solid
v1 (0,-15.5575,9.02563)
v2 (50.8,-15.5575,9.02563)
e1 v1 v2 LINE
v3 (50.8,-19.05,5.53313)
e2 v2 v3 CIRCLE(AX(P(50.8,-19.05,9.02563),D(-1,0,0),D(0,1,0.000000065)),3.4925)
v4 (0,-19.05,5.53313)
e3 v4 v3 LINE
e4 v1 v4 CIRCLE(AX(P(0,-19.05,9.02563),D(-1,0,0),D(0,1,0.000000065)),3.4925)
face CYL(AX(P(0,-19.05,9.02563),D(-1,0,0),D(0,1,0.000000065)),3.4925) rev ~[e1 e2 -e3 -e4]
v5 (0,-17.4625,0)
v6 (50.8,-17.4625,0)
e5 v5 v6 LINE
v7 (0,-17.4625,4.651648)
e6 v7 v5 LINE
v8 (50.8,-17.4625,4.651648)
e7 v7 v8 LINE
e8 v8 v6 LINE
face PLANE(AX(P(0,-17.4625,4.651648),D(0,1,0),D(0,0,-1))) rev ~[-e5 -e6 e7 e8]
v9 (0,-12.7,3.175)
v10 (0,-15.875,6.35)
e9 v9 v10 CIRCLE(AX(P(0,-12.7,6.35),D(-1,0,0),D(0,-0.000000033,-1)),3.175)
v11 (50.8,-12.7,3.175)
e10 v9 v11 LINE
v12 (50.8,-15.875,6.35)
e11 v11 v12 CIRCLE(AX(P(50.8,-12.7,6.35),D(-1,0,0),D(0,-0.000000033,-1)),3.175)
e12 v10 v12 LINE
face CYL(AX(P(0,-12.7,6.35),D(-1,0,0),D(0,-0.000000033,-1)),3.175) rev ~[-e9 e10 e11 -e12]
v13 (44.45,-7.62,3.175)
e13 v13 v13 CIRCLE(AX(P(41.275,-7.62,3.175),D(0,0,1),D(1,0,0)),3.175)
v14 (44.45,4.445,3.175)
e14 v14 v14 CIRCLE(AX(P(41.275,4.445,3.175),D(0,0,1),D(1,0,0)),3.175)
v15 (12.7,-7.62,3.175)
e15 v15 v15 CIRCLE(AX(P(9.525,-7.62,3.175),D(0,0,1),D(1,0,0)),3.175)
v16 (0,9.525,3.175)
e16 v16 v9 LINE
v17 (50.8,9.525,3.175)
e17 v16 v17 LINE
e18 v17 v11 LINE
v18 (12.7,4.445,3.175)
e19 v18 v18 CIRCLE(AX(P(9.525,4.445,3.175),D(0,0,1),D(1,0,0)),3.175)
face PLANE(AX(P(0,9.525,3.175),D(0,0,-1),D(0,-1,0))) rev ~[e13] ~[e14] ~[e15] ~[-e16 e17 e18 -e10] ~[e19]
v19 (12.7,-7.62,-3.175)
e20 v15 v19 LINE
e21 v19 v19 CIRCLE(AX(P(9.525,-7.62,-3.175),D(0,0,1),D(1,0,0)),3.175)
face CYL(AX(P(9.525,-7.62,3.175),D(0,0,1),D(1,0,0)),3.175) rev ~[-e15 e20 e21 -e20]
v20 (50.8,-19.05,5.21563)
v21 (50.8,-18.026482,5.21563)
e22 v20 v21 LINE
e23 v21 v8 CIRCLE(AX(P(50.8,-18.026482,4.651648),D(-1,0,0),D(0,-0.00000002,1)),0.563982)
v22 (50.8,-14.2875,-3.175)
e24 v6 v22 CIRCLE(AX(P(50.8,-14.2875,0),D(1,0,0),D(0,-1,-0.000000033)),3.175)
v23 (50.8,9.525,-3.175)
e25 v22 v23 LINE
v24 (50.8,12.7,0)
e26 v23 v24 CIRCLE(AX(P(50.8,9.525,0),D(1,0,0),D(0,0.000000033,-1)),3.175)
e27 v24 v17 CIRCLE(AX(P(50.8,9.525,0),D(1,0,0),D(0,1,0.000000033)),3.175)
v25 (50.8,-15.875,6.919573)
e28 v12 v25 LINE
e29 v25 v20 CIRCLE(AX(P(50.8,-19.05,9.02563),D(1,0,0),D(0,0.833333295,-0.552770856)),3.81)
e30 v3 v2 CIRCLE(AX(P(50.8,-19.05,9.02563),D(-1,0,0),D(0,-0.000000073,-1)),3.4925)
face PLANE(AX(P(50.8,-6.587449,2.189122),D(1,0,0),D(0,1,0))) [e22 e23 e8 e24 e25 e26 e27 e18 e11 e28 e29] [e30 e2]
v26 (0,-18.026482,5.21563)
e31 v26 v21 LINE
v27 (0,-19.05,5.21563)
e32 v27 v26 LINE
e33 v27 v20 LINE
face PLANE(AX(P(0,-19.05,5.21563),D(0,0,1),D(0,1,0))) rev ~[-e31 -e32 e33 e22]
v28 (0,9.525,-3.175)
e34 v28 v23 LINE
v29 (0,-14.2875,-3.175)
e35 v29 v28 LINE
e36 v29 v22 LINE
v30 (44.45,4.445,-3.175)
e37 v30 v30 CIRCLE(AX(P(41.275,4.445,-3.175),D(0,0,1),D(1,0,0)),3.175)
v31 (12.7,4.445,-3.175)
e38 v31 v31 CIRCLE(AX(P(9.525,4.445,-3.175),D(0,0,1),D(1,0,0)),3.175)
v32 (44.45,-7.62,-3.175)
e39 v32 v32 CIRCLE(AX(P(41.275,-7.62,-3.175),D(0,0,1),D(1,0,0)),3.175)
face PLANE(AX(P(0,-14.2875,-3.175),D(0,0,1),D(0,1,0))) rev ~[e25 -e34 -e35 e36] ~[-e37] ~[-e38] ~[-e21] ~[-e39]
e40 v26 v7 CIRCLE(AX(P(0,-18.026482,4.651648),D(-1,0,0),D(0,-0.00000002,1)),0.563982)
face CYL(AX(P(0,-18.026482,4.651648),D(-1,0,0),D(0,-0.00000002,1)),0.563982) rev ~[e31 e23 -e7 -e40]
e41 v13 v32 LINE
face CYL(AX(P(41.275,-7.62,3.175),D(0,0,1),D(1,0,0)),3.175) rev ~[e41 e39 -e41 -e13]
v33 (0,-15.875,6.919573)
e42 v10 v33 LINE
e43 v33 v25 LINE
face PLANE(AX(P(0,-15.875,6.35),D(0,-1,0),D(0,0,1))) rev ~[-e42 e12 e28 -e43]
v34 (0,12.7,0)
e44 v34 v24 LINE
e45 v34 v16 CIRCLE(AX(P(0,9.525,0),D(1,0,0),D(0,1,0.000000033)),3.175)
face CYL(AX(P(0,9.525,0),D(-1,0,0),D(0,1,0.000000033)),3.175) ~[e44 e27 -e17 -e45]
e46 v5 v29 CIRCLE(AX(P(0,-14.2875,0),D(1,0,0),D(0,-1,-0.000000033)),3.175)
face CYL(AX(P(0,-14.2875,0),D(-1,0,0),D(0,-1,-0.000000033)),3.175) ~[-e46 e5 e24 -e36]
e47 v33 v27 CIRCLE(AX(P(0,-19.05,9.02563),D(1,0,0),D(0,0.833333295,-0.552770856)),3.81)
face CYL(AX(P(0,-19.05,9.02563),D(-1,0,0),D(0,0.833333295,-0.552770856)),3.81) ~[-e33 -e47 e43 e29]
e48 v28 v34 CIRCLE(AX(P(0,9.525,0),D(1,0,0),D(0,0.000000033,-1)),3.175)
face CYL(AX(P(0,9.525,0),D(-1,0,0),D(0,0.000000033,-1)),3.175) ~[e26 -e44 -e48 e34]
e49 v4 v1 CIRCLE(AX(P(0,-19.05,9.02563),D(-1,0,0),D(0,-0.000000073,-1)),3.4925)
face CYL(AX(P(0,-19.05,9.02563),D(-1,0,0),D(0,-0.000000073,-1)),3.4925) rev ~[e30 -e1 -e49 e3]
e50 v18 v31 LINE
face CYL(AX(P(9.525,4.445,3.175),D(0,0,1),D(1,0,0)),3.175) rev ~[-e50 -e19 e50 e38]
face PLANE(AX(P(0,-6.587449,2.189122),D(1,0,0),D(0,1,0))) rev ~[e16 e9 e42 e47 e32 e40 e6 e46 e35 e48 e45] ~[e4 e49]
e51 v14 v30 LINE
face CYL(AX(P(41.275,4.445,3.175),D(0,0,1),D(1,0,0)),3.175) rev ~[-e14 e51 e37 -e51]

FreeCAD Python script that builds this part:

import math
import FreeCAD as App
import Part
import Sketcher
Q = App.Units.Quantity

doc = App.newDocument("Part")
params = doc.addObject("Spreadsheet::Sheet", "Params")
for row, (alias, value) in enumerate([
    ("sketch1_radius", "0.15 in"),
    ("sketch1_radius2", "0.125 in"),
    ("sketch1_width", "0.9375 in"),
    ("pad1_length", "2 in"),
    ("sketch2_diameter", "0.25 in"),
    ("pocket1_length", "1 in"),
], start=1):
    params.set(f"A{row}", alias)
    params.set(f"B{row}", "=" + value)
    params.setAlias(f"B{row}", alias)

body = doc.addObject("PartDesign::Body", "Body")

# Sketch on YZ plane
sketch1 = body.newObject("Sketcher::SketchObject", "Sketch")
sketch1.AttachmentSupport = (doc.getObject("YZ_Plane"), [""])
sketch1.MapMode = "FlatFace"
sketch1.addGeometry(Part.ArcOfCircle(Part.Circle(App.Vector(9.5, 0, 0), App.Vector(0, 0, 1), 3.2), math.radians(0), math.radians(90)), False)
sketch1.addGeometry(Part.LineSegment(App.Vector(9.5, 3.2, 0), App.Vector(-12.7, 3.2, 0)), False)
sketch1.addGeometry(Part.ArcOfCircle(Part.Circle(App.Vector(-12.7, 6.4, 0), App.Vector(0, 0, 1), 3.2), math.radians(-180), math.radians(-90)), False)
sketch1.addGeometry(Part.LineSegment(App.Vector(-15.9, 6.3, 0), App.Vector(-15.9, 6.9, 0)), False)
sketch1.addGeometry(Part.ArcOfCircle(Part.Circle(App.Vector(-19, 9, 0), App.Vector(0, 0, 1), 3.8), math.radians(-34), math.radians(270)), False)
sketch1.addGeometry(Part.LineSegment(App.Vector(-19.1, 5.2, 0), App.Vector(-18, 5.2, 0)), False)
sketch1.addGeometry(Part.ArcOfCircle(Part.Circle(App.Vector(-18, 4.7, 0), App.Vector(0, 0, 1), 0.6), math.radians(0), math.radians(90)), False)
sketch1.addGeometry(Part.LineSegment(App.Vector(-17.5, 4.7, 0), App.Vector(-17.5, 0, 0)), False)
sketch1.addGeometry(Part.ArcOfCircle(Part.Circle(App.Vector(-14.3, 0, 0), App.Vector(0, 0, 1), 3.2), math.radians(-180), math.radians(-90)), False)
sketch1.addGeometry(Part.LineSegment(App.Vector(-14.3, -3.2, 0), App.Vector(9.5, -3.2, 0)), False)
sketch1.addGeometry(Part.ArcOfCircle(Part.Circle(App.Vector(9.5, 0, 0), App.Vector(0, 0, 1), 3.2), math.radians(-90), math.radians(0)), False)
sketch1.addGeometry(Part.ArcOfCircle(Part.Circle(App.Vector(-19, 9, 0), App.Vector(0, 0, 1), 3.5), math.radians(0), math.radians(270)), False)
sketch1.addGeometry(Part.ArcOfCircle(Part.Circle(App.Vector(-19, 9, 0), App.Vector(0, 0, 1), 3.5), math.radians(-90), math.radians(0)), False)
sketch1.addConstraint(Sketcher.Constraint("Tangent", 0, 2, 1, 1))
sketch1.addConstraint(Sketcher.Constraint("Tangent", 1, 2, 2, 2))
sketch1.addConstraint(Sketcher.Constraint("Tangent", 2, 1, 3, 1))
sketch1.addConstraint(Sketcher.Constraint("Coincident", 3, 2, 4, 1))
sketch1.addConstraint(Sketcher.Constraint("Tangent", 4, 2, 5, 1))
sketch1.addConstraint(Sketcher.Constraint("Tangent", 5, 2, 6, 2))
sketch1.addConstraint(Sketcher.Constraint("Tangent", 6, 1, 7, 1))
sketch1.addConstraint(Sketcher.Constraint("Tangent", 7, 2, 8, 1))
sketch1.addConstraint(Sketcher.Constraint("Tangent", 8, 2, 9, 1))
sketch1.addConstraint(Sketcher.Constraint("Tangent", 9, 2, 10, 1))
sketch1.addConstraint(Sketcher.Constraint("Tangent", 10, 2, 0, 1))
sketch1.addConstraint(Sketcher.Constraint("Tangent", 11, 1, 12, 2))
sketch1.addConstraint(Sketcher.Constraint("Coincident", 12, 1, 11, 2))
sketch1.addConstraint(Sketcher.Constraint("Horizontal", 1))
sketch1.addConstraint(Sketcher.Constraint("Vertical", 3))
sketch1.addConstraint(Sketcher.Constraint("Horizontal", 5))
sketch1.addConstraint(Sketcher.Constraint("Vertical", 7))
sketch1.addConstraint(Sketcher.Constraint("Horizontal", 9))
sketch1.addConstraint(Sketcher.Constraint("Coincident", 11, 3, 4, 3))
sketch1.addConstraint(Sketcher.Constraint("Equal", 0, 2))
sketch1.addConstraint(Sketcher.Constraint("Equal", 2, 8))
sketch1.addConstraint(Sketcher.Constraint("Equal", 8, 10))
sketch1.addConstraint(Sketcher.Constraint("PointOnObject", 0, 3, -1))
sketch1.addConstraint(Sketcher.Constraint("PointOnObject", 10, 2, -1))
sketch1.addConstraint(Sketcher.Constraint("Horizontal", 12, 3, 11, 1))
sketch1.addConstraint(Sketcher.Constraint("Vertical", 4, 2, 12, 1))
sketch1.addConstraint(Sketcher.Constraint("Radius", 4, Q("0.15 in")))
sketch1.addConstraint(Sketcher.Constraint("Radius", 0, Q("0.125 in")))
sketch1.addConstraint(Sketcher.Constraint("DistanceX", 1, 2, 10, 2, Q("1 in")))
sketch1.addConstraint(Sketcher.Constraint("DistanceX", 2, 3, -1, 1, Q("0.5 in")))
sketch1.addConstraint(Sketcher.Constraint("Radius", 11, Q("0.1375 in")))
sketch1.addConstraint(Sketcher.Constraint("DistanceX", 9, 1, 9, 2, Q("0.9375 in")))
sketch1.addConstraint(Sketcher.Constraint("DistanceX", 4, 3, -1, 1, Q("0.75 in")))
sketch1.addConstraint(Sketcher.Constraint("Radius", 6, Q("0.563982 mm")))
sketch1.addConstraint(Sketcher.Constraint("DistanceY", 3, 1, 3, 2, Q("0.569573 mm")))
sketch1.setExpression("Constraints[26]", "Params.sketch1_radius")
sketch1.setExpression("Constraints[27]", "Params.sketch1_radius2")
sketch1.setExpression("Constraints[31]", "Params.sketch1_width")
pad1 = body.newObject("PartDesign::Pad", "Pad")
pad1.Profile = sketch1
pad1.setExpression("Length", "Params.pad1_length")

# Sketch on XY plane
sketch2 = body.newObject("Sketcher::SketchObject", "Sketch001")
sketch2.AttachmentSupport = (doc.getObject("XY_Plane"), [""])
sketch2.MapMode = "FlatFace"
sketch2.AttachmentOffset = App.Placement(App.Vector(0, 0, 0.125 * 25.4), App.Rotation())
sketch2.addGeometry(Part.Circle(App.Vector(41.3, -7.6, 0), App.Vector(0, 0, 1), 3.2), False)
sketch2.addGeometry(Part.Circle(App.Vector(41.3, 4.4, 0), App.Vector(0, 0, 1), 3.2), False)
sketch2.addGeometry(Part.Circle(App.Vector(9.5, 4.4, 0), App.Vector(0, 0, 1), 3.2), False)
sketch2.addGeometry(Part.Circle(App.Vector(9.5, -7.6, 0), App.Vector(0, 0, 1), 3.2), False)
sketch2.addConstraint(Sketcher.Constraint("Equal", 0, 1))
sketch2.addConstraint(Sketcher.Constraint("Equal", 1, 2))
sketch2.addConstraint(Sketcher.Constraint("Equal", 2, 3))
sketch2.addConstraint(Sketcher.Constraint("Horizontal", 1, 3, 2, 3))
sketch2.addConstraint(Sketcher.Constraint("Horizontal", 0, 3, 3, 3))
sketch2.addConstraint(Sketcher.Constraint("Vertical", 0, 3, 1, 3))
sketch2.addConstraint(Sketcher.Constraint("Vertical", 2, 3, 3, 3))
sketch2.addConstraint(Sketcher.Constraint("Diameter", 0, Q("0.25 in")))
sketch2.addConstraint(Sketcher.Constraint("DistanceY", 0, 3, -1, 1, Q("0.3 in")))
sketch2.addConstraint(Sketcher.Constraint("DistanceX", 2, 3, 1, 3, Q("1.25 in")))
sketch2.addConstraint(Sketcher.Constraint("DistanceX", -1, 1, 0, 3, Q("1.625 in")))
sketch2.addConstraint(Sketcher.Constraint("DistanceY", -1, 1, 1, 3, Q("0.175 in")))
sketch2.setExpression("Constraints[7]", "Params.sketch2_diameter")
pocket1 = body.newObject("PartDesign::Pocket", "Pocket")
pocket1.Profile = sketch2
pocket1.setExpression("Length", "Params.pocket1_length")

doc.recompute()
